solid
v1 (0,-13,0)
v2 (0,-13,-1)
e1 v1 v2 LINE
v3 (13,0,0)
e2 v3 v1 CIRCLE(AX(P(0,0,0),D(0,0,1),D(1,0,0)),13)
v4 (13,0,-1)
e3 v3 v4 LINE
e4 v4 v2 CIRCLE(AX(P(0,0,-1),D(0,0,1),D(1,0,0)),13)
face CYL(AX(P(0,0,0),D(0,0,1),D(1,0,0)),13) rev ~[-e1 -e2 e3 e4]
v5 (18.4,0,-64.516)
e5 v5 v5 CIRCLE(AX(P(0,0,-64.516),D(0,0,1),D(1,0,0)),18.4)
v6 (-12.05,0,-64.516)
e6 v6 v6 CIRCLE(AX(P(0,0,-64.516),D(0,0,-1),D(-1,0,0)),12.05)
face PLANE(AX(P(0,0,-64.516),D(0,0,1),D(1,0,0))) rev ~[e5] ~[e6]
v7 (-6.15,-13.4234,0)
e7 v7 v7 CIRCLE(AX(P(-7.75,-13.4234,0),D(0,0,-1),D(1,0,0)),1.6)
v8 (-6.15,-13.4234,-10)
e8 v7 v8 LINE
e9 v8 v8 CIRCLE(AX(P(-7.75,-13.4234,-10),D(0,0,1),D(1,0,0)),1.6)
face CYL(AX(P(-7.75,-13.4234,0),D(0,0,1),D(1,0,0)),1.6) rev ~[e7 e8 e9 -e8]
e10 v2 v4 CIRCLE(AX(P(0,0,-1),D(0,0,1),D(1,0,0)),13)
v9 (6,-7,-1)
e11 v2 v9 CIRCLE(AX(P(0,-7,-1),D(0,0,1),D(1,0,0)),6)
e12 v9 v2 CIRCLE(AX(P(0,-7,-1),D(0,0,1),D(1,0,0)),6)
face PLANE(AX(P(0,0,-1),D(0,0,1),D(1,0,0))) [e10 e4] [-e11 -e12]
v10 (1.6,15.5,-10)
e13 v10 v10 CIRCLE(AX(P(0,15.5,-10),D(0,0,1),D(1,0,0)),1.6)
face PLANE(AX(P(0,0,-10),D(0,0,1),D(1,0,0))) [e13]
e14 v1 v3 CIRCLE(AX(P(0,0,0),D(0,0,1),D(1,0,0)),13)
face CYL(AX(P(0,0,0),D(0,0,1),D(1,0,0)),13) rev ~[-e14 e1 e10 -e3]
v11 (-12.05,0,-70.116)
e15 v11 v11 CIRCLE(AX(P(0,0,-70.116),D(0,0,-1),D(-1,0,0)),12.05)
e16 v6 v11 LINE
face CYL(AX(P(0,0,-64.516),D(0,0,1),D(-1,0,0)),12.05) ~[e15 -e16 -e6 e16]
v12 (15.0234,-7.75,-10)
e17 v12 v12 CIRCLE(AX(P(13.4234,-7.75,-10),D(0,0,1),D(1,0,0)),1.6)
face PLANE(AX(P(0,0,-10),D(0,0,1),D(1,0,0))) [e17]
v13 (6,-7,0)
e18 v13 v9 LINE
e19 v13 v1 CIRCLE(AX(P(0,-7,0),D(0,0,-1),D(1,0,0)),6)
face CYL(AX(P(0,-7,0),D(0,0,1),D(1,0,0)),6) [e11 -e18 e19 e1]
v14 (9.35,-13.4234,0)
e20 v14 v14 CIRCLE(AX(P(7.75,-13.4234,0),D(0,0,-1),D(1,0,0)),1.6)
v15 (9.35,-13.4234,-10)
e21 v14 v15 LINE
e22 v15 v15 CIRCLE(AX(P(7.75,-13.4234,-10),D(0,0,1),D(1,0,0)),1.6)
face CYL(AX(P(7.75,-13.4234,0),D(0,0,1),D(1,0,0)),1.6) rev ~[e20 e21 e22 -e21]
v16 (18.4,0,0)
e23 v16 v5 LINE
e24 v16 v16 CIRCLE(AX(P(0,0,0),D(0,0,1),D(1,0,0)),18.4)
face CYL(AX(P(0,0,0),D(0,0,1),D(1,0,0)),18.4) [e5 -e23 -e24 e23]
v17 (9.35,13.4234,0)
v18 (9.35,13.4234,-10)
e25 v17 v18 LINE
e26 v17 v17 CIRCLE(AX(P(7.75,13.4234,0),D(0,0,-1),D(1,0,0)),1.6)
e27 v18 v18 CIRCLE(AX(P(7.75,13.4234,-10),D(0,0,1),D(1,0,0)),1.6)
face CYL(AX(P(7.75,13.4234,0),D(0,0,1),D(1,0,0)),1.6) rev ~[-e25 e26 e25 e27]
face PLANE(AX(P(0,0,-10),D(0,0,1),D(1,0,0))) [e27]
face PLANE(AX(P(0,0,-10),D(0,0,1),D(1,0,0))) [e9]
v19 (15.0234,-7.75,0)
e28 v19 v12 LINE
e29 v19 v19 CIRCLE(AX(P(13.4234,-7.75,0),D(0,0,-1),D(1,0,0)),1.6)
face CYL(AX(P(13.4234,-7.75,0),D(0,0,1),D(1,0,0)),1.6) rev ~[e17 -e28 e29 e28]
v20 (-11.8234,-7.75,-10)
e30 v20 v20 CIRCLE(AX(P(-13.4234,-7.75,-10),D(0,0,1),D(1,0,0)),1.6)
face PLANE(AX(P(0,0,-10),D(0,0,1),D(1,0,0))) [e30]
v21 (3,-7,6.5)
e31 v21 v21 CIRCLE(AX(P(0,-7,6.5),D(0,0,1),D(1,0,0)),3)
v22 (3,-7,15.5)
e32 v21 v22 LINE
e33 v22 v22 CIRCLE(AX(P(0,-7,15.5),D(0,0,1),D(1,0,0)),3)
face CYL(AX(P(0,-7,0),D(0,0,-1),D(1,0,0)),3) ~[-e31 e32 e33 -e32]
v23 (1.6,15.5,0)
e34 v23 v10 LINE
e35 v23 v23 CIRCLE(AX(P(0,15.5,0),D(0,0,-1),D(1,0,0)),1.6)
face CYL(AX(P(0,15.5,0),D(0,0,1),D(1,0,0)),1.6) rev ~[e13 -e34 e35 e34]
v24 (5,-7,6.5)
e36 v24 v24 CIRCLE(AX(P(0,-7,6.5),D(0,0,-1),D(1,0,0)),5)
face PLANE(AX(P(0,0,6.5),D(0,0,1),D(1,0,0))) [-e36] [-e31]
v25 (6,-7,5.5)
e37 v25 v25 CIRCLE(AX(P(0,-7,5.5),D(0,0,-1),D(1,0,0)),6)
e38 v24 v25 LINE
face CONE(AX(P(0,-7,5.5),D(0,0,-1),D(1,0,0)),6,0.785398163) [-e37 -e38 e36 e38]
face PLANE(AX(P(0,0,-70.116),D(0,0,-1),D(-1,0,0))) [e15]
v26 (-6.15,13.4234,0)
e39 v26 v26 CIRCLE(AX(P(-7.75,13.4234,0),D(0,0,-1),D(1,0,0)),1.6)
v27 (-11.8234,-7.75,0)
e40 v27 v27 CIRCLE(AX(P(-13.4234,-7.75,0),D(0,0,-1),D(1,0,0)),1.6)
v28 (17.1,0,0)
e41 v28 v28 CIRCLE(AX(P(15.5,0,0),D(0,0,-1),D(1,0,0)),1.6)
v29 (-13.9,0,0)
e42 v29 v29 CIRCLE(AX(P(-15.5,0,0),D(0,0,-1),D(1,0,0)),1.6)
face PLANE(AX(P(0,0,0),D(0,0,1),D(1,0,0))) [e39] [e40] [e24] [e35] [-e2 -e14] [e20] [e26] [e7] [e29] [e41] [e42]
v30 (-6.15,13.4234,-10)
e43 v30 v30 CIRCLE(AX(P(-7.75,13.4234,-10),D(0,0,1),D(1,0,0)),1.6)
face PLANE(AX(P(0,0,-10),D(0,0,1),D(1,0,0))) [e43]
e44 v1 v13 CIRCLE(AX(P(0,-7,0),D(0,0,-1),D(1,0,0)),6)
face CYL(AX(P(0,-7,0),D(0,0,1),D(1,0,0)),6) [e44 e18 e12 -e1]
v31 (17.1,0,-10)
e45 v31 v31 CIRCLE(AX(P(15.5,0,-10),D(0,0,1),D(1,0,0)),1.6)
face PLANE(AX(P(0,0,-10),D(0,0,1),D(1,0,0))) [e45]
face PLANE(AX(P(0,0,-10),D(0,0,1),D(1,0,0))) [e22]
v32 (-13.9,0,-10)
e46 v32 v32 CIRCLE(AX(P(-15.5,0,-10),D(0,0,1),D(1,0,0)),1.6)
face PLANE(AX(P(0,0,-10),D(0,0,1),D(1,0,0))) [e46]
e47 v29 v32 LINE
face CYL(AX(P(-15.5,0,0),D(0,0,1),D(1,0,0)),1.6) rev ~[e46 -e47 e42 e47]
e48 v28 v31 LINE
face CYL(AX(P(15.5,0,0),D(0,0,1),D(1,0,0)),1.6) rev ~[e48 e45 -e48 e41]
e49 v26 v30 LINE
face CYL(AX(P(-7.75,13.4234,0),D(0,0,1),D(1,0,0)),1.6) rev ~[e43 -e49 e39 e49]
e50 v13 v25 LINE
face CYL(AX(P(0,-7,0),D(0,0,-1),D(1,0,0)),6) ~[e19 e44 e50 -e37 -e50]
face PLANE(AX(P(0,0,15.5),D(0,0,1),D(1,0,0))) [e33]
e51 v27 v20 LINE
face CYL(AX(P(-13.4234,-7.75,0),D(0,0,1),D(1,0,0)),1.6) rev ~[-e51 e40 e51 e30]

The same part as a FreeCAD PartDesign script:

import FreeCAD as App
import Part
import Sketcher
Q = App.Units.Quantity


def edges_at(feature, points):
    """Names of the edges that pass closest to the given points."""
    edges = feature.Shape.Edges
    near = lambda p: min(range(len(edges)), key=lambda i: edges[i].distToShape(Part.Vertex(*p))[0])
    return sorted({f"Edge{near(p) + 1}" for p in points})

doc = App.newDocument("Part")
body = doc.addObject("PartDesign::Body", "Body")

# Sketch on XY plane
sketch1 = body.newObject("Sketcher::SketchObject", "Sketch")
sketch1.AttachmentSupport = (doc.getObject("XY_Plane"), [""])
sketch1.MapMode = "FlatFace"
sketch1.addGeometry(Part.Circle(App.Vector(0, 0, 0), App.Vector(0, 0, 1), 18), False)
sketch1.addConstraint([
    Sketcher.Constraint("Coincident", 0, 3, -1, 1),
    Sketcher.Constraint("Diameter", 0, Q("36.8 mm")),
])
pad1 = body.newObject("PartDesign::Pad", "Pad")
pad1.Profile = sketch1
pad1.Length = 64.516
pad1.Reversed = True

# Sketch on XY plane
sketch2 = body.newObject("Sketcher::SketchObject", "Sketch001")
sketch2.AttachmentSupport = (doc.getObject("XY_Plane"), [""])
sketch2.MapMode = "FlatFace"
sketch2.addGeometry([
    Part.Circle(App.Vector(0, -7, 0), App.Vector(0, 0, 1), 6),
    Part.Circle(App.Vector(0, -7, 0), App.Vector(0, 0, 1), 3),
], False)
sketch2.addConstraint([
    Sketcher.Constraint("Coincident", 1, 3, 0, 3),
    Sketcher.Constraint("PointOnObject", 0, 3, -2),
    Sketcher.Constraint("Diameter", 0, Q("12 mm")),
    Sketcher.Constraint("Diameter", 1, Q("6 mm")),
    Sketcher.Constraint("DistanceY", 0, 3, -1, 1, Q("7 mm")),
])
pad2 = body.newObject("PartDesign::Pad", "Pad001")
pad2.Profile = sketch2
pad2.Length = 6.5

# Sketch on XY plane
sketch3 = body.newObject("Sketcher::SketchObject", "Sketch002")
sketch3.AttachmentSupport = (doc.getObject("XY_Plane"), [""])
sketch3.MapMode = "FlatFace"
sketch3.addGeometry(Part.Circle(App.Vector(0, -7, 0), App.Vector(0, 0, 1), 3), False)
sketch3.addConstraint([
    Sketcher.Constraint("PointOnObject", 0, 3, -2),
    Sketcher.Constraint("Diameter", 0, Q("6 mm")),
    Sketcher.Constraint("DistanceY", 0, 3, -1, 1, Q("7 mm")),
])
pad3 = body.newObject("PartDesign::Pad", "Pad002")
pad3.Profile = sketch3
pad3.Length = 15.5

# Sketch on XY plane
sketch4 = body.newObject("Sketcher::SketchObject", "Sketch003")
sketch4.AttachmentSupport = (doc.getObject("XY_Plane"), [""])
sketch4.MapMode = "FlatFace"
sketch4.AttachmentOffset = App.Placement(App.Vector(0, 0, -64.516), App.Rotation())
sketch4.addGeometry(Part.Circle(App.Vector(0, 0, 0), App.Vector(0, 0, 1), 12), False)
sketch4.addConstraint([
    Sketcher.Constraint("Coincident", 0, 3, -1, 1),
    Sketcher.Constraint("Diameter", 0, Q("24.1 mm")),
])
pad4 = body.newObject("PartDesign::Pad", "Pad003")
pad4.Profile = sketch4
pad4.Length = 5.6
pad4.Reversed = True
doc.recompute()

chamfer = body.newObject("PartDesign::Chamfer", "Chamfer")
chamfer.Base = (pad4, edges_at(pad4, [(-6, -7, 6.5)]))
chamfer.Size = 1

# Sketch on XY plane
sketch5 = body.newObject("Sketcher::SketchObject", "Sketch004")
sketch5.AttachmentSupport = (doc.getObject("XY_Plane"), [""])
sketch5.MapMode = "FlatFace"
sketch5.addGeometry([
    Part.Circle(App.Vector(0, 0, 0), App.Vector(0, 0, 1), 13),
    Part.Circle(App.Vector(0, -7, 0), App.Vector(0, 0, 1), 6),
], False)
sketch5.addConstraint([
    Sketcher.Constraint("Coincident", 0, 3, -1, 1),
    Sketcher.Constraint("PointOnObject", 1, 3, -2),
    Sketcher.Constraint("Diameter", 1, Q("12 mm")),
    Sketcher.Constraint("Diameter", 0, Q("26 mm")),
    Sketcher.Constraint("DistanceY", 1, 3, -1, 1, Q("7 mm")),
])
pocket1 = body.newObject("PartDesign::Pocket", "Pocket")
pocket1.Profile = sketch5
pocket1.Length = 1

# Sketch on XY plane
sketch6 = body.newObject("Sketcher::SketchObject", "Sketch005")
sketch6.AttachmentSupport = (doc.getObject("XY_Plane"), [""])
sketch6.MapMode = "FlatFace"
sketch6.addGeometry([
    Part.Circle(App.Vector(15.5, 0, 0), App.Vector(0, 0, 1), 1.6),  # 0
    Part.Circle(App.Vector(7.8, 13.4, 0), App.Vector(0, 0, 1), 1.6),  # 1
    Part.Circle(App.Vector(13.4, -7.8, 0), App.Vector(0, 0, 1), 1.6),  # 2
    Part.Circle(App.Vector(0, 15.5, 0), App.Vector(0, 0, 1), 1.6),  # 3
    Part.Circle(App.Vector(7.8, -13.4, 0), App.Vector(0, 0, 1), 1.6),  # 4
    Part.Circle(App.Vector(-7.8, 13.4, 0), App.Vector(0, 0, 1), 1.6),  # 5
    Part.Circle(App.Vector(-7.8, -13.4, 0), App.Vector(0, 0, 1), 1.6),  # 6
    Part.Circle(App.Vector(-15.5, 0, 0), App.Vector(0, 0, 1), 1.6),  # 7
    Part.Circle(App.Vector(-13.4, -7.8, 0), App.Vector(0, 0, 1), 1.6),  # 8
], False)
sketch6.addConstraint([
    Sketcher.Constraint("Equal", 0, 1),
    Sketcher.Constraint("Equal", 1, 2),
    Sketcher.Constraint("Equal", 2, 3),
    Sketcher.Constraint("Equal", 3, 4),
    Sketcher.Constraint("Equal", 4, 5),
    Sketcher.Constraint("Equal", 5, 6),
    Sketcher.Constraint("Equal", 6, 7),
    Sketcher.Constraint("Equal", 7, 8),
    Sketcher.Constraint("Symmetric", 4, 3, 5, 3, -1, 1),
    Sketcher.Constraint("Symmetric", 1, 3, 6, 3, -1, 1),
    Sketcher.Constraint("Symmetric", 0, 3, 7, 3, -1, 1),
    Sketcher.Constraint("Symmetric", 1, 3, 5, 3, -2),
    Sketcher.Constraint("Symmetric", 2, 3, 8, 3, -2),
    Sketcher.Constraint("PointOnObject", 0, 3, -1),
    Sketcher.Constraint("PointOnObject", 3, 3, -2),
    Sketcher.Constraint("Diameter", 0, Q("3.2 mm")),
    Sketcher.Constraint("DistanceX", -1, 1, 0, 3, Q("15.5 mm")),
    Sketcher.Constraint("DistanceY", -1, 1, 3, 3, Q("15.5 mm")),
    Sketcher.Constraint("DistanceX", 5, 3, 1, 3, Q("15.5 mm")),
    Sketcher.Constraint("DistanceY", 2, 3, -1, 1, Q("7.75 mm")),
    Sketcher.Constraint("DistanceY", -1, 1, 1, 3, Q("13.4234 mm")),
    Sketcher.Constraint("DistanceX", -1, 1, 2, 3, Q("13.4234 mm")),
])
pocket2 = body.newObject("PartDesign::Pocket", "Pocket001")
pocket2.Profile = sketch6
pocket2.Length = 10

doc.recompute()
